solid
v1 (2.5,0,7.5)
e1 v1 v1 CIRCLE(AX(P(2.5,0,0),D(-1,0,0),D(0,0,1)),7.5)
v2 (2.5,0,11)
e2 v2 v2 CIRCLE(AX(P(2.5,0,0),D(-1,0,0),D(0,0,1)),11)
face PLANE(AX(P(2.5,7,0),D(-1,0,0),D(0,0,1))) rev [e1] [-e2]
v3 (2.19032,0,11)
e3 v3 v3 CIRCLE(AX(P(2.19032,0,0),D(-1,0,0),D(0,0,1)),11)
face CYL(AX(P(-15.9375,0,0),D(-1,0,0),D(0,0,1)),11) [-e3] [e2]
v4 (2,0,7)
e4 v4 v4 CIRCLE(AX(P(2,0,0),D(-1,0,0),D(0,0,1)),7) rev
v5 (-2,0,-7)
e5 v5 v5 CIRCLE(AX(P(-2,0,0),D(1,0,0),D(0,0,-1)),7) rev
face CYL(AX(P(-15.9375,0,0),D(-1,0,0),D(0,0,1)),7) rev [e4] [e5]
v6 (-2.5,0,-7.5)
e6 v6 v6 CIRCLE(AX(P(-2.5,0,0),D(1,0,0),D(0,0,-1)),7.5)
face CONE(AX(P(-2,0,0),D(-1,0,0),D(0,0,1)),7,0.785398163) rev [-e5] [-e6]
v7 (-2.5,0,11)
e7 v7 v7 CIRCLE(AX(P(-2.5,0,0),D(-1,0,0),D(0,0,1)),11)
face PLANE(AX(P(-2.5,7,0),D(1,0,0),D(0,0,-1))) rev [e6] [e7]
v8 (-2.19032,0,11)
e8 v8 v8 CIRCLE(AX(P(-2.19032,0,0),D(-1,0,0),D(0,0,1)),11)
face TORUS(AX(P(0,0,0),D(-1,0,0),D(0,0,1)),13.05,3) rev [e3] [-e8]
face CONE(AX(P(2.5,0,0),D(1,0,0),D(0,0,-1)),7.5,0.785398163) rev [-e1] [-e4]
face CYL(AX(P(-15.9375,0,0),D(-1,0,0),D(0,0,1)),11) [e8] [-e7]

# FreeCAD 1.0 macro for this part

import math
import FreeCAD as App
import Part
import Sketcher
Q = App.Units.Quantity


def edges_at(feature, points):
    """Names of the edges that pass closest to the given points."""
    edges = feature.Shape.Edges
    near = lambda p: min(range(len(edges)), key=lambda i: edges[i].distToShape(Part.Vertex(*p))[0])
    return sorted({f"Edge{near(p) + 1}" for p in points})

doc = App.newDocument("Part")
body = doc.addObject("PartDesign::Body", "Body")

sketch1 = body.newObject("Sketcher::SketchObject", "Sketch")
sketch1.AttachmentSupport = (doc.getObject("XY_Plane"), [""])
sketch1.MapMode = "FlatFace"
sketch1.addGeometry([
    Part.LineSegment(App.Vector(-2.19032, 11, 0), App.Vector(-2.5, 11, 0)),
    Part.LineSegment(App.Vector(-2.5, 11, 0), App.Vector(-2.5, 7, 0)),
    Part.LineSegment(App.Vector(-2.5, 7, 0), App.Vector(2.5, 7, 0)),
    Part.LineSegment(App.Vector(2.5, 7, 0), App.Vector(2.5, 11, 0)),
    Part.LineSegment(App.Vector(2.5, 11, 0), App.Vector(2.19032, 11, 0)),
    Part.ArcOfCircle(Part.Circle(App.Vector(0, 13.05, 0), App.Vector(0, 0, 1), 3), math.radians(-136.895326), math.radians(-43.104674)),
], False)
sketch1.addConstraint([
    Sketcher.Constraint("Coincident", 0, 2, 1, 1),
    Sketcher.Constraint("Coincident", 1, 2, 2, 1),
    Sketcher.Constraint("Coincident", 2, 2, 3, 1),
    Sketcher.Constraint("Coincident", 3, 2, 4, 1),
    Sketcher.Constraint("Coincident", 4, 2, 5, 2),
    Sketcher.Constraint("Coincident", 5, 1, 0, 1),
    Sketcher.Constraint("Horizontal", 0),
    Sketcher.Constraint("Vertical", 1),
    Sketcher.Constraint("Horizontal", 2),
    Sketcher.Constraint("Vertical", 3),
    Sketcher.Constraint("Horizontal", 4),
    Sketcher.Constraint("Symmetric", 0, 2, 3, 2, -2),
    Sketcher.Constraint("PointOnObject", 5, 3, -2),
    Sketcher.Constraint("Radius", 5, Q("3 mm")),
    Sketcher.Constraint("DistanceX", 2, 1, 2, 2, Q("5 mm")),
    Sketcher.Constraint("DistanceY", 1, 2, 1, 1, Q("4 mm")),
    Sketcher.Constraint("DistanceY", -1, 1, 0, 2, Q("11 mm")),
    Sketcher.Constraint("DistanceY", -1, 1, 5, 3, Q("13.05 mm")),
])
revolution = body.newObject("PartDesign::Revolution", "Revolution")
revolution.Profile = sketch1
revolution.ReferenceAxis = (sketch1, ["H_Axis"])
revolution.Angle = 360
doc.recompute()

chamfer = body.newObject("PartDesign::Chamfer", "Chamfer")
chamfer.Base = (revolution, edges_at(revolution, [(2.5, -7, 0), (-2.5, -7, 0)]))
chamfer.Size = 0.5

doc.recompute()
